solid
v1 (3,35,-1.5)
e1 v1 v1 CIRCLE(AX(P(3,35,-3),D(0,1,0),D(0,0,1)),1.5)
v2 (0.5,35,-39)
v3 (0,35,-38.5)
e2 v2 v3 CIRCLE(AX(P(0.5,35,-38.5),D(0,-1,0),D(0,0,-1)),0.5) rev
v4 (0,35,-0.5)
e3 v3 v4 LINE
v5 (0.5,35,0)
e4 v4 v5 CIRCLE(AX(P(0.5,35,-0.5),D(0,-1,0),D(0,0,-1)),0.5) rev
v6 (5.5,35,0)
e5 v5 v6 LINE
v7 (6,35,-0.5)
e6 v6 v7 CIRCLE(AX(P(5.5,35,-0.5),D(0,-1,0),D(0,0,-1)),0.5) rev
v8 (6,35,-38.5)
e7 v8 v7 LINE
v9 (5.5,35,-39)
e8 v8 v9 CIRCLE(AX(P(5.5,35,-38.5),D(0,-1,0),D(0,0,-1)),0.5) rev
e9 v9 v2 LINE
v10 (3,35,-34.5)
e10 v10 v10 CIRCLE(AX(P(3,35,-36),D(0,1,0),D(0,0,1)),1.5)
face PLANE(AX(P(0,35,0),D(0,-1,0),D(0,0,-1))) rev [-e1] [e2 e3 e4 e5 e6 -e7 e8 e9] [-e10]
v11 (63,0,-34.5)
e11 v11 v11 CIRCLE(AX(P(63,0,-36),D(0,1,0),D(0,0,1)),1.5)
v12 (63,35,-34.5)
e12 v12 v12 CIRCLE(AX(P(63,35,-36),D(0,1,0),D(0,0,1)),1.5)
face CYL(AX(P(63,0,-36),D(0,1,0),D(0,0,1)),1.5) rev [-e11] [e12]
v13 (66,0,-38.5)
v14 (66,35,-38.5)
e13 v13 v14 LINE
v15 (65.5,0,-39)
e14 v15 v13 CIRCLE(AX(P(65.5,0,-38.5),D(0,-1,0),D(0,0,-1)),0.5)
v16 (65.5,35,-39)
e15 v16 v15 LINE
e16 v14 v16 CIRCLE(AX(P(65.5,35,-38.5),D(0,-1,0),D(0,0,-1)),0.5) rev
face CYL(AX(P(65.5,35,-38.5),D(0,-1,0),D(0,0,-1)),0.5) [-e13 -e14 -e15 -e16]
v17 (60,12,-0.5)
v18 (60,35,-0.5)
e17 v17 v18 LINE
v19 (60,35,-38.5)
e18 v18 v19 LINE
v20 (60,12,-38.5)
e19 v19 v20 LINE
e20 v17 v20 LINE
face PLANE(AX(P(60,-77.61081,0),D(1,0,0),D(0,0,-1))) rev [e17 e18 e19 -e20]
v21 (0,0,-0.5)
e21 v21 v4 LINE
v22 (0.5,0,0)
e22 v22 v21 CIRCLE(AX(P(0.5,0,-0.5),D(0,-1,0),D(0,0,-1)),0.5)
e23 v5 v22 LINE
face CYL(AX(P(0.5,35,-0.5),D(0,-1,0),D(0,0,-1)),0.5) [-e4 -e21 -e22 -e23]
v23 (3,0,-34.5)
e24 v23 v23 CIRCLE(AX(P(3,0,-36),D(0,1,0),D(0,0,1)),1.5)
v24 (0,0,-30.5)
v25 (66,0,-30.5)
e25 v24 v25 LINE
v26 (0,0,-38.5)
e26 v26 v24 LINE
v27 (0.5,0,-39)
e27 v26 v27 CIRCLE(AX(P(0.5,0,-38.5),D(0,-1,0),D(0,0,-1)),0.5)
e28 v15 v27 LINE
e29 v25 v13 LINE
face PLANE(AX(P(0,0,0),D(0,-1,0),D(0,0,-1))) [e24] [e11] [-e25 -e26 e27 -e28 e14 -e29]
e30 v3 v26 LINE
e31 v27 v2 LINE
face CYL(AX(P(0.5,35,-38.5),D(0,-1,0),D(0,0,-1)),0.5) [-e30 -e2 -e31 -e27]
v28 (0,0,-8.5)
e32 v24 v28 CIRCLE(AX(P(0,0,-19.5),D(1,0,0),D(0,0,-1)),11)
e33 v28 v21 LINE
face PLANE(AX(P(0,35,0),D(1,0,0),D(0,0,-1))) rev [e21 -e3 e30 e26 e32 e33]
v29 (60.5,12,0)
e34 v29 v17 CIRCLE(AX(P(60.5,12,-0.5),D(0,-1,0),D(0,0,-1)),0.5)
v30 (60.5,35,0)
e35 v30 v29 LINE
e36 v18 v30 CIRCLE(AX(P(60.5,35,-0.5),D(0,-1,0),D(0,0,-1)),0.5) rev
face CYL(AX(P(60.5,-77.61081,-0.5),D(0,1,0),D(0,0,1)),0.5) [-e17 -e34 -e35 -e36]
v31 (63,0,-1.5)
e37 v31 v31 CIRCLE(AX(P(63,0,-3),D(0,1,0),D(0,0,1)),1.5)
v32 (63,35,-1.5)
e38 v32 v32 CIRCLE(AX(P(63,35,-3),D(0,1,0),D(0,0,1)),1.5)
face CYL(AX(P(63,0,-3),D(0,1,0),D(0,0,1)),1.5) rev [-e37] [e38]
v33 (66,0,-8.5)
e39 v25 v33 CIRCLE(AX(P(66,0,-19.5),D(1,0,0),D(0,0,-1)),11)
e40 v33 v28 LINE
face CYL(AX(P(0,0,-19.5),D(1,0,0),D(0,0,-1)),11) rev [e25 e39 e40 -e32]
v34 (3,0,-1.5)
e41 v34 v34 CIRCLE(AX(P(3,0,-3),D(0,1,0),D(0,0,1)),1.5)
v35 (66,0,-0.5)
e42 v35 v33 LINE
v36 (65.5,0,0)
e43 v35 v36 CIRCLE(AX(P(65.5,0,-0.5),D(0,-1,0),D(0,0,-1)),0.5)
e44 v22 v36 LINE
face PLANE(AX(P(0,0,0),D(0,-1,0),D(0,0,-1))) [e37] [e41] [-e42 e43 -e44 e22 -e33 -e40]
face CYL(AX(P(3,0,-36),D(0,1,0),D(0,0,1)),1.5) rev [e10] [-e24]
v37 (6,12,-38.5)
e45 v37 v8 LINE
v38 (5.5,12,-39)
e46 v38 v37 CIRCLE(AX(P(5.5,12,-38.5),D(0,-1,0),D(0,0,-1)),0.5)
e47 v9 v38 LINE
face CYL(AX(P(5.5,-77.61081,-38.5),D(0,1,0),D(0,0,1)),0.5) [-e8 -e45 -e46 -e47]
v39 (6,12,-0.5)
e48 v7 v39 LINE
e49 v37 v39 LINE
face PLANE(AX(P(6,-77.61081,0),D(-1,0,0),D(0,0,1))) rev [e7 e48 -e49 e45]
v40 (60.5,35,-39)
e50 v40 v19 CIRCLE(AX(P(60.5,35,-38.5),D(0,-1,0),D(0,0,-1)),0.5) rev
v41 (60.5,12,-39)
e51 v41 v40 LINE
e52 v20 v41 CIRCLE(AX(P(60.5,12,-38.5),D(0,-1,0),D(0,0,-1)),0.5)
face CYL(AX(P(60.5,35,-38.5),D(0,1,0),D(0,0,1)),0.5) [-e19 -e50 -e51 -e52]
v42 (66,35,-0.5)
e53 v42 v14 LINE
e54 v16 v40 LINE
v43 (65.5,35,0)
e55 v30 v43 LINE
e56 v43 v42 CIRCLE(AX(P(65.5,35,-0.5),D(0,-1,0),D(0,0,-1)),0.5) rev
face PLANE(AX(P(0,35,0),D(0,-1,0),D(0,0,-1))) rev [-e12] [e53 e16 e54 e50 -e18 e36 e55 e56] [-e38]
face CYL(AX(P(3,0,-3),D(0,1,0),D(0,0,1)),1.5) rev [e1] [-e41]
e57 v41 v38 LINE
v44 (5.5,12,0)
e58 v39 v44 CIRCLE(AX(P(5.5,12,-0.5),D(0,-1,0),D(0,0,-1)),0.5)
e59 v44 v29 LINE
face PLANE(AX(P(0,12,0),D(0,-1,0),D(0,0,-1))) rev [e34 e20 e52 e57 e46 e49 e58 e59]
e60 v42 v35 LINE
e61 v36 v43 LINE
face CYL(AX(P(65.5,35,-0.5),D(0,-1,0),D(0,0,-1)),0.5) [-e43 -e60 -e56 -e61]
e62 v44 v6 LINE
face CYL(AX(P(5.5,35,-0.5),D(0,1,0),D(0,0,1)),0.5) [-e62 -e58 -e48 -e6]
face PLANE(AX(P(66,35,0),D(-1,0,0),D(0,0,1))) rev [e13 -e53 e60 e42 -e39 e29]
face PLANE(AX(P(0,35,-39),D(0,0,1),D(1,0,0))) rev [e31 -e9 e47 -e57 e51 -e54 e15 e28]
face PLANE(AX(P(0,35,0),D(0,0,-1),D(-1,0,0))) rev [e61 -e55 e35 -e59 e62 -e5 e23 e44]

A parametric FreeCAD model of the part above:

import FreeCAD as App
import Part
import Sketcher


def edges_at(feature, points):
    """Names of the edges that pass closest to the given points."""
    edges = feature.Shape.Edges
    near = lambda p: min(range(len(edges)), key=lambda i: edges[i].distToShape(Part.Vertex(*p))[0])
    return sorted({f"Edge{near(p) + 1}" for p in points})


def add_polygon(sketch, points):
    """Adds a closed chain of lines whose ends are joined by coincident constraints."""
    first, n = sketch.GeometryCount, len(points)
    for a, b in zip(points, points[1:] + points[:1]):
        sketch.addGeometry(Part.LineSegment(App.Vector(*a, 0), App.Vector(*b, 0)), False)
    for i in range(n):
        sketch.addConstraint(Sketcher.Constraint("Coincident", first + i, 2, first + (i + 1) % n, 1))

doc = App.newDocument("Part")
params = doc.addObject("Spreadsheet::Sheet", "Params")
for row, (alias, value) in enumerate([
    ("sketch1_width", "66 mm"),
    ("sketch1_height", "39 mm"),
    ("pad1_length", "35 mm"),
    ("sketch2_width", "54 mm"),
    ("sketch2_height", "39 mm"),
    ("pocket1_length", "23 mm"),
    ("sketch3_diameter", "22 mm"),
    ("sketch4_diameter", "3 mm"),
    ("fillet_radius", "0.5 mm"),
], start=1):
    params.set(f"A{row}", alias)
    params.set(f"B{row}", "=" + value)
    params.setAlias(f"B{row}", alias)

body = doc.addObject("PartDesign::Body", "Body")

# Sketch on XZ plane
sketch1 = body.newObject("Sketcher::SketchObject", "Sketch")
sketch1.AttachmentSupport = (doc.getObject("XZ_Plane"), [""])
sketch1.MapMode = "FlatFace"
add_polygon(sketch1, [(0, -39), (0, 0), (66, 0), (66, -39)])  # lines 0-3
sketch1.addConstraint([
    Sketcher.Constraint("Vertical", 0),
    Sketcher.Constraint("Horizontal", 1),
    Sketcher.Constraint("Vertical", 2),
    Sketcher.Constraint("Horizontal", 3),
    Sketcher.Constraint("Coincident", 0, 2, -1, 1),
    Sketcher.Constraint("DistanceX", 1, 1, 1, 2, 66.0),
    Sketcher.Constraint("DistanceY", 0, 1, 0, 2, 39.0),
])
sketch1.setExpression("Constraints[9]", "Params.sketch1_width")
sketch1.setExpression("Constraints[10]", "Params.sketch1_height")
pad1 = body.newObject("PartDesign::Pad", "Pad")
pad1.Profile = sketch1
pad1.setExpression("Length", "Params.pad1_length")
pad1.Reversed = True

# Sketch on XZ plane
sketch2 = body.newObject("Sketcher::SketchObject", "Sketch001")
sketch2.AttachmentSupport = (doc.getObject("XZ_Plane"), [""])
sketch2.MapMode = "FlatFace"
sketch2.AttachmentOffset = App.Placement(App.Vector(0, 0, -35), App.Rotation())
add_polygon(sketch2, [(6, -39), (6, 0), (60, 0), (60, -39)])  # lines 0-3
sketch2.addConstraint([
    Sketcher.Constraint("Vertical", 0),
    Sketcher.Constraint("Horizontal", 1),
    Sketcher.Constraint("Vertical", 2),
    Sketcher.Constraint("Horizontal", 3),
    Sketcher.Constraint("PointOnObject", 0, 2, -1),
    Sketcher.Constraint("DistanceX", 1, 1, 1, 2, 54.0),
    Sketcher.Constraint("DistanceY", 0, 1, 0, 2, 39.0),
    Sketcher.Constraint("DistanceX", -1, 1, 0, 2, 6.0),
])
sketch2.setExpression("Constraints[9]", "Params.sketch2_width")
sketch2.setExpression("Constraints[10]", "Params.sketch2_height")
pocket1 = body.newObject("PartDesign::Pocket", "Pocket")
pocket1.Profile = sketch2
pocket1.setExpression("Length", "Params.pocket1_length")
pocket1.Reversed = True

# Sketch on YZ plane
sketch3 = body.newObject("Sketcher::SketchObject", "Sketch002")
sketch3.AttachmentSupport = (doc.getObject("YZ_Plane"), [""])
sketch3.MapMode = "FlatFace"
sketch3.AttachmentOffset = App.Placement(App.Vector(0, 0, 66), App.Rotation())
sketch3.addGeometry(Part.Circle(App.Vector(0, -19.5, 0), App.Vector(0, 0, 1), 11), False)
sketch3.addConstraint([
    Sketcher.Constraint("PointOnObject", 0, 3, -2),
    Sketcher.Constraint("Diameter", 0, 22.0),
    Sketcher.Constraint("DistanceY", 0, 3, -1, 1, 19.5),
])
sketch3.setExpression("Constraints[1]", "Params.sketch3_diameter")
pocket2 = body.newObject("PartDesign::Pocket", "Pocket001")
pocket2.Profile = sketch3
pocket2.Type = "ThroughAll"

# Sketch on XZ plane
sketch4 = body.newObject("Sketcher::SketchObject", "Sketch003")
sketch4.AttachmentSupport = (doc.getObject("XZ_Plane"), [""])
sketch4.MapMode = "FlatFace"
sketch4.AttachmentOffset = App.Placement(App.Vector(0, 0, -35), App.Rotation())
sketch4.addGeometry([
    Part.Circle(App.Vector(3, -3, 0), App.Vector(0, 0, 1), 1.5),
    Part.Circle(App.Vector(63, -3, 0), App.Vector(0, 0, 1), 1.5),
    Part.Circle(App.Vector(63, -36, 0), App.Vector(0, 0, 1), 1.5),
    Part.Circle(App.Vector(3, -36, 0), App.Vector(0, 0, 1), 1.5),
], False)
sketch4.addConstraint([
    Sketcher.Constraint("Equal", 0, 1),
    Sketcher.Constraint("Equal", 1, 2),
    Sketcher.Constraint("Equal", 2, 3),
    Sketcher.Constraint("Horizontal", 0, 3, 1, 3),
    Sketcher.Constraint("Horizontal", 2, 3, 3, 3),
    Sketcher.Constraint("Vertical", 1, 3, 2, 3),
    Sketcher.Constraint("Vertical", 0, 3, 3, 3),
    Sketcher.Constraint("Diameter", 0, 3.0),
    Sketcher.Constraint("DistanceX", -1, 1, 0, 3, 3.0),
    Sketcher.Constraint("DistanceY", 0, 3, -1, 1, 3.0),
    Sketcher.Constraint("DistanceX", -1, 1, 1, 3, 63.0),
    Sketcher.Constraint("DistanceY", 2, 3, -1, 1, 36.0),
])
sketch4.setExpression("Constraints[7]", "Params.sketch4_diameter")
pocket3 = body.newObject("PartDesign::Pocket", "Pocket002")
pocket3.Profile = sketch4
pocket3.Type = "ThroughAll"
pocket3.Reversed = True
doc.recompute()

fillet = body.newObject("PartDesign::Fillet", "Fillet")
fillet.Base = (pocket3, edges_at(pocket3, [
    (60, 23.5, 0),
    (60, 23.5, -39),
    (6, 23.5, -39),
    (6, 23.5, 0),
    (0, 17.5, -39),
    (66, 17.5, -39),
    (66, 17.5, 0),
    (0, 17.5, 0),
]))
fillet.setExpression("Radius", "Params.fillet_radius")

doc.recompute()
